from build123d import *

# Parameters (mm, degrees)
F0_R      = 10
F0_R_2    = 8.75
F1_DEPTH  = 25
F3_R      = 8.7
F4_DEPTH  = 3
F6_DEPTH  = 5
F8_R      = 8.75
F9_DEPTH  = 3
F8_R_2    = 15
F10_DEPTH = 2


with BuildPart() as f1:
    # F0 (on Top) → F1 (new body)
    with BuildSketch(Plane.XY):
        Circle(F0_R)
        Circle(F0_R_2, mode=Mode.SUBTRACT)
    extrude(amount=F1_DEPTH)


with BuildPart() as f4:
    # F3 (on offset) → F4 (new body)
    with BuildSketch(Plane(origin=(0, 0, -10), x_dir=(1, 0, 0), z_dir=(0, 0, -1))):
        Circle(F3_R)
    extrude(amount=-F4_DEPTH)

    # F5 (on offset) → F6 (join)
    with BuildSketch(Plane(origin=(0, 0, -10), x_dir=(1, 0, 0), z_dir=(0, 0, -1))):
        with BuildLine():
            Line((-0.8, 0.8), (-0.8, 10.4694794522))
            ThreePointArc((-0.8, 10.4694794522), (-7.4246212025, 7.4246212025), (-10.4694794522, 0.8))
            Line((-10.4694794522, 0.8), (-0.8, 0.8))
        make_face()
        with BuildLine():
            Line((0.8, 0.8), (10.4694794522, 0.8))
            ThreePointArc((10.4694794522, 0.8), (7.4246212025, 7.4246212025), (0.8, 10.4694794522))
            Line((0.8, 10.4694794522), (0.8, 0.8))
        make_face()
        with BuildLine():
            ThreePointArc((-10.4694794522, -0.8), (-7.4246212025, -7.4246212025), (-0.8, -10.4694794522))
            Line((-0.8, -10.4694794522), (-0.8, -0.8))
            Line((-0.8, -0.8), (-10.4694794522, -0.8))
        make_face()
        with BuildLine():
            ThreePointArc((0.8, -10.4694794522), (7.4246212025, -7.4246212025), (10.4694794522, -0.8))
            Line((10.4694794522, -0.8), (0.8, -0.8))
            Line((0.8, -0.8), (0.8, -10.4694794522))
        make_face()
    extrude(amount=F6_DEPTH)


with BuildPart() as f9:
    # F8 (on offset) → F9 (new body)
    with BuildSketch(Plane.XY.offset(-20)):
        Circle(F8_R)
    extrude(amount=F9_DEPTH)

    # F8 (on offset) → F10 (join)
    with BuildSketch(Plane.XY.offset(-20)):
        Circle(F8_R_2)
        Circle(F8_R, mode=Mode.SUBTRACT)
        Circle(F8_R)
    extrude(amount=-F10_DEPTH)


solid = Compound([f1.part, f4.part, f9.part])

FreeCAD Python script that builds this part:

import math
import FreeCAD as App
import Part
import Sketcher

doc = App.newDocument("Part")
body = doc.addObject("PartDesign::Body", "Body")

# Sketch on XY plane
sketch1 = doc.addObject("Sketcher::SketchObject", "Sketch")
body.addObject(sketch1)
sketch1.AttachmentSupport = (doc.XY_Plane, [""])
sketch1.MapMode = "FlatFace"
sketch1.addGeometry([
    Part.Circle(App.Vector(0, 0, 0), App.Vector(0, 0, 1), 10),
    Part.Circle(App.Vector(0, 0, 0), App.Vector(0, 0, 1), 9),
], False)
sketch1.addConstraint([
    Sketcher.Constraint("Coincident", 0, 3, -1, 1),
    Sketcher.Constraint("Coincident", 1, 3, -1, 1),
    Sketcher.Constraint("Diameter", 0, 20.0),
    Sketcher.Constraint("Diameter", 1, 17.5),
])
pad1 = doc.addObject("PartDesign::Pad", "Pad")
body.addObject(pad1)
pad1.Profile = sketch1
pad1.Length = 25
body2 = doc.addObject("PartDesign::Body", "Body001")

# Sketch on XY plane
sketch2 = doc.addObject("Sketcher::SketchObject", "Sketch001")
body2.addObject(sketch2)
sketch2.AttachmentSupport = (doc.getObject("XY_Plane001"), [""])
sketch2.MapMode = "FlatFace"
sketch2.AttachmentOffset = App.Placement(App.Vector(0, 0, -10), App.Rotation())
sketch2.addGeometry(Part.Circle(App.Vector(0, 0, 0), App.Vector(0, 0, 1), 9), False)
sketch2.addConstraint([
    Sketcher.Constraint("Coincident", 0, 3, -1, 1),
    Sketcher.Constraint("Diameter", 0, 17.4),
])
pad2 = doc.addObject("PartDesign::Pad", "Pad001")
body2.addObject(pad2)
pad2.Profile = sketch2
pad2.Length = 3

# Sketch on XY plane
sketch3 = doc.addObject("Sketcher::SketchObject", "Sketch002")
body2.addObject(sketch3)
sketch3.AttachmentSupport = (doc.getObject("XY_Plane001"), [""])
sketch3.MapMode = "FlatFace"
sketch3.AttachmentOffset = App.Placement(App.Vector(0, 0, -10), App.Rotation())
sketch3.addGeometry([
    Part.LineSegment(App.Vector(-1, -1, 0), App.Vector(-1, -10, 0)),  # 0
    Part.ArcOfCircle(Part.Circle(App.Vector(0, 0, 0), App.Vector(0, 0, 1), 10), math.radians(-176), math.radians(-94)),  # 1
    Part.LineSegment(App.Vector(-10, -1, 0), App.Vector(-1, -1, 0)),  # 2
    Part.LineSegment(App.Vector(1, -1, 0), App.Vector(10, -1, 0)),  # 3
    Part.ArcOfCircle(Part.Circle(App.Vector(0, 0, 0), App.Vector(0, 0, 1), 10), math.radians(-86), math.radians(-4)),  # 4
    Part.LineSegment(App.Vector(1, -10, 0), App.Vector(1, -1, 0)),  # 5
    Part.ArcOfCircle(Part.Circle(App.Vector(0, 0, 0), App.Vector(0, 0, 1), 10), math.radians(94), math.radians(176)),  # 6
    Part.LineSegment(App.Vector(-1, 10, 0), App.Vector(-1, 1, 0)),  # 7
    Part.LineSegment(App.Vector(-1, 1, 0), App.Vector(-10, 1, 0)),  # 8
    Part.ArcOfCircle(Part.Circle(App.Vector(0, 0, 0), App.Vector(0, 0, 1), 10), math.radians(4), math.radians(86)),  # 9
    Part.LineSegment(App.Vector(10, 1, 0), App.Vector(1, 1, 0)),  # 10
    Part.LineSegment(App.Vector(1, 1, 0), App.Vector(1, 10, 0)),  # 11
], False)
sketch3.addConstraint([
    Sketcher.Constraint("Coincident", 0, 2, 1, 2),
    Sketcher.Constraint("Coincident", 1, 1, 2, 1),
    Sketcher.Constraint("Coincident", 2, 2, 0, 1),
    Sketcher.Constraint("Coincident", 3, 2, 4, 2),
    Sketcher.Constraint("Coincident", 4, 1, 5, 1),
    Sketcher.Constraint("Coincident", 5, 2, 3, 1),
    Sketcher.Constraint("Coincident", 6, 1, 7, 1),
    Sketcher.Constraint("Coincident", 7, 2, 8, 1),
    Sketcher.Constraint("Coincident", 8, 2, 6, 2),
    Sketcher.Constraint("Coincident", 9, 1, 10, 1),
    Sketcher.Constraint("Coincident", 10, 2, 11, 1),
    Sketcher.Constraint("Coincident", 11, 2, 9, 2),
    Sketcher.Constraint("Vertical", 0),
    Sketcher.Constraint("Horizontal", 2),
    Sketcher.Constraint("Horizontal", 3),
    Sketcher.Constraint("Vertical", 5),
    Sketcher.Constraint("Vertical", 7),
    Sketcher.Constraint("Horizontal", 8),
    Sketcher.Constraint("Horizontal", 10),
    Sketcher.Constraint("Vertical", 11),
    Sketcher.Constraint("Coincident", 1, 3, -1, 1),
    Sketcher.Constraint("Coincident", 4, 3, -1, 1),
    Sketcher.Constraint("Coincident", 6, 3, -1, 1),
    Sketcher.Constraint("Coincident", 9, 3, -1, 1),
    Sketcher.Constraint("Equal", 1, 4),
    Sketcher.Constraint("Equal", 4, 6),
    Sketcher.Constraint("Equal", 6, 9),
    Sketcher.Constraint("Symmetric", 5, 2, 7, 2, -1, 1),
    Sketcher.Constraint("Symmetric", 2, 2, 10, 2, -1, 1),
    Sketcher.Constraint("Symmetric", 2, 2, 5, 2, -2),
    Sketcher.Constraint("Equal", 10, 0),
    Sketcher.Constraint("Radius", 1, 10.5),
    Sketcher.Constraint("DistanceX", 0, 2, -1, 1, 0.8),
])
pad3 = doc.addObject("PartDesign::Pad", "Pad002")
body2.addObject(pad3)
pad3.Profile = sketch3
pad3.Length = 5
pad3.Reversed = True
body3 = doc.addObject("PartDesign::Body", "Body002")

# Sketch on XY plane
sketch4 = doc.addObject("Sketcher::SketchObject", "Sketch003")
body3.addObject(sketch4)
sketch4.AttachmentSupport = (doc.getObject("XY_Plane002"), [""])
sketch4.MapMode = "FlatFace"
sketch4.AttachmentOffset = App.Placement(App.Vector(0, 0, -20), App.Rotation())
sketch4.addGeometry(Part.Circle(App.Vector(0, 0, 0), App.Vector(0, 0, 1), 9), False)
sketch4.addConstraint([
    Sketcher.Constraint("Coincident", 0, 3, -1, 1),
    Sketcher.Constraint("Diameter", 0, 17.5),
])
pad4 = doc.addObject("PartDesign::Pad", "Pad003")
body3.addObject(pad4)
pad4.Profile = sketch4
pad4.Length = 3

# Sketch on XY plane
sketch5 = doc.addObject("Sketcher::SketchObject", "Sketch004")
body3.addObject(sketch5)
sketch5.AttachmentSupport = (doc.getObject("XY_Plane002"), [""])
sketch5.MapMode = "FlatFace"
sketch5.AttachmentOffset = App.Placement(App.Vector(0, 0, -20), App.Rotation())
sketch5.addGeometry(Part.Circle(App.Vector(0, 0, 0), App.Vector(0, 0, 1), 15), False)
sketch5.addConstraint([
    Sketcher.Constraint("Coincident", 0, 3, -1, 1),
    Sketcher.Constraint("Diameter", 0, 30.0),
])
pad5 = doc.addObject("PartDesign::Pad", "Pad004")
body3.addObject(pad5)
pad5.Profile = sketch5
pad5.Length = 2
pad5.Reversed = True

doc.recompute()
